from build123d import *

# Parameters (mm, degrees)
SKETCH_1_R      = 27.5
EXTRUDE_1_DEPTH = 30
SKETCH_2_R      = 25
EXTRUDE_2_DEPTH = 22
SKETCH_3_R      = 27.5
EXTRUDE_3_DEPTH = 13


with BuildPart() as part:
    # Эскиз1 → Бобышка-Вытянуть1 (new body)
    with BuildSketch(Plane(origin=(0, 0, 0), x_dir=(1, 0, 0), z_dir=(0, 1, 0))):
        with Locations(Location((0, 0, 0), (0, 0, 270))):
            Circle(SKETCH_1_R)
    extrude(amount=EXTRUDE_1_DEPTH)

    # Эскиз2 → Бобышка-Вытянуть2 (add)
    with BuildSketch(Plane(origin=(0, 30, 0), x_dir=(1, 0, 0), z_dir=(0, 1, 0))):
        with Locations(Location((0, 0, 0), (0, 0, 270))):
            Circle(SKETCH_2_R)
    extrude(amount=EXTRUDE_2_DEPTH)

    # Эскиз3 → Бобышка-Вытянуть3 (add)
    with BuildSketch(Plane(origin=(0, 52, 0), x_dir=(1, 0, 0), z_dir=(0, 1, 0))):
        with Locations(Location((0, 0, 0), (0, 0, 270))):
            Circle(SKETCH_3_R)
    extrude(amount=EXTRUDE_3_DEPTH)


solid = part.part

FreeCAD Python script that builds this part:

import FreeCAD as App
import Part
import Sketcher
Q = App.Units.Quantity

doc = App.newDocument("Part")
body = doc.addObject("PartDesign::Body", "Body")

sketch1 = body.newObject("Sketcher::SketchObject", "Sketch")
sketch1.AttachmentSupport = (doc.getObject("XZ_Plane"), [""])
sketch1.MapMode = "FlatFace"
sketch1.addGeometry(Part.Circle(App.Vector(0, 0, 0), App.Vector(0, 0, 1), 28), False)
sketch1.addConstraint([
    Sketcher.Constraint("Coincident", 0, 3, -1, 1),
    Sketcher.Constraint("Diameter", 0, Q("55 mm")),
])
pad1 = body.newObject("PartDesign::Pad", "Pad")
pad1.Profile = sketch1
pad1.Length = 30
pad1.Reversed = True

sketch2 = body.newObject("Sketcher::SketchObject", "Sketch001")
sketch2.AttachmentSupport = (doc.getObject("XZ_Plane"), [""])
sketch2.MapMode = "FlatFace"
sketch2.AttachmentOffset = App.Placement(App.Vector(0, 0, -30), App.Rotation())
sketch2.addGeometry(Part.Circle(App.Vector(0, 0, 0), App.Vector(0, 0, 1), 25), False)
sketch2.addConstraint([
    Sketcher.Constraint("Coincident", 0, 3, -1, 1),
    Sketcher.Constraint("Diameter", 0, Q("50 mm")),
])
pad2 = body.newObject("PartDesign::Pad", "Pad001")
pad2.Profile = sketch2
pad2.Length = 22
pad2.Reversed = True

sketch3 = body.newObject("Sketcher::SketchObject", "Sketch002")
sketch3.AttachmentSupport = (doc.getObject("XZ_Plane"), [""])
sketch3.MapMode = "FlatFace"
sketch3.AttachmentOffset = App.Placement(App.Vector(0, 0, -52), App.Rotation())
sketch3.addGeometry(Part.Circle(App.Vector(0, 0, 0), App.Vector(0, 0, 1), 28), False)
sketch3.addConstraint([
    Sketcher.Constraint("Coincident", 0, 3, -1, 1),
    Sketcher.Constraint("Diameter", 0, Q("55 mm")),
])
pad3 = body.newObject("PartDesign::Pad", "Pad002")
pad3.Profile = sketch3
pad3.Length = 13
pad3.Reversed = True

doc.recompute()
